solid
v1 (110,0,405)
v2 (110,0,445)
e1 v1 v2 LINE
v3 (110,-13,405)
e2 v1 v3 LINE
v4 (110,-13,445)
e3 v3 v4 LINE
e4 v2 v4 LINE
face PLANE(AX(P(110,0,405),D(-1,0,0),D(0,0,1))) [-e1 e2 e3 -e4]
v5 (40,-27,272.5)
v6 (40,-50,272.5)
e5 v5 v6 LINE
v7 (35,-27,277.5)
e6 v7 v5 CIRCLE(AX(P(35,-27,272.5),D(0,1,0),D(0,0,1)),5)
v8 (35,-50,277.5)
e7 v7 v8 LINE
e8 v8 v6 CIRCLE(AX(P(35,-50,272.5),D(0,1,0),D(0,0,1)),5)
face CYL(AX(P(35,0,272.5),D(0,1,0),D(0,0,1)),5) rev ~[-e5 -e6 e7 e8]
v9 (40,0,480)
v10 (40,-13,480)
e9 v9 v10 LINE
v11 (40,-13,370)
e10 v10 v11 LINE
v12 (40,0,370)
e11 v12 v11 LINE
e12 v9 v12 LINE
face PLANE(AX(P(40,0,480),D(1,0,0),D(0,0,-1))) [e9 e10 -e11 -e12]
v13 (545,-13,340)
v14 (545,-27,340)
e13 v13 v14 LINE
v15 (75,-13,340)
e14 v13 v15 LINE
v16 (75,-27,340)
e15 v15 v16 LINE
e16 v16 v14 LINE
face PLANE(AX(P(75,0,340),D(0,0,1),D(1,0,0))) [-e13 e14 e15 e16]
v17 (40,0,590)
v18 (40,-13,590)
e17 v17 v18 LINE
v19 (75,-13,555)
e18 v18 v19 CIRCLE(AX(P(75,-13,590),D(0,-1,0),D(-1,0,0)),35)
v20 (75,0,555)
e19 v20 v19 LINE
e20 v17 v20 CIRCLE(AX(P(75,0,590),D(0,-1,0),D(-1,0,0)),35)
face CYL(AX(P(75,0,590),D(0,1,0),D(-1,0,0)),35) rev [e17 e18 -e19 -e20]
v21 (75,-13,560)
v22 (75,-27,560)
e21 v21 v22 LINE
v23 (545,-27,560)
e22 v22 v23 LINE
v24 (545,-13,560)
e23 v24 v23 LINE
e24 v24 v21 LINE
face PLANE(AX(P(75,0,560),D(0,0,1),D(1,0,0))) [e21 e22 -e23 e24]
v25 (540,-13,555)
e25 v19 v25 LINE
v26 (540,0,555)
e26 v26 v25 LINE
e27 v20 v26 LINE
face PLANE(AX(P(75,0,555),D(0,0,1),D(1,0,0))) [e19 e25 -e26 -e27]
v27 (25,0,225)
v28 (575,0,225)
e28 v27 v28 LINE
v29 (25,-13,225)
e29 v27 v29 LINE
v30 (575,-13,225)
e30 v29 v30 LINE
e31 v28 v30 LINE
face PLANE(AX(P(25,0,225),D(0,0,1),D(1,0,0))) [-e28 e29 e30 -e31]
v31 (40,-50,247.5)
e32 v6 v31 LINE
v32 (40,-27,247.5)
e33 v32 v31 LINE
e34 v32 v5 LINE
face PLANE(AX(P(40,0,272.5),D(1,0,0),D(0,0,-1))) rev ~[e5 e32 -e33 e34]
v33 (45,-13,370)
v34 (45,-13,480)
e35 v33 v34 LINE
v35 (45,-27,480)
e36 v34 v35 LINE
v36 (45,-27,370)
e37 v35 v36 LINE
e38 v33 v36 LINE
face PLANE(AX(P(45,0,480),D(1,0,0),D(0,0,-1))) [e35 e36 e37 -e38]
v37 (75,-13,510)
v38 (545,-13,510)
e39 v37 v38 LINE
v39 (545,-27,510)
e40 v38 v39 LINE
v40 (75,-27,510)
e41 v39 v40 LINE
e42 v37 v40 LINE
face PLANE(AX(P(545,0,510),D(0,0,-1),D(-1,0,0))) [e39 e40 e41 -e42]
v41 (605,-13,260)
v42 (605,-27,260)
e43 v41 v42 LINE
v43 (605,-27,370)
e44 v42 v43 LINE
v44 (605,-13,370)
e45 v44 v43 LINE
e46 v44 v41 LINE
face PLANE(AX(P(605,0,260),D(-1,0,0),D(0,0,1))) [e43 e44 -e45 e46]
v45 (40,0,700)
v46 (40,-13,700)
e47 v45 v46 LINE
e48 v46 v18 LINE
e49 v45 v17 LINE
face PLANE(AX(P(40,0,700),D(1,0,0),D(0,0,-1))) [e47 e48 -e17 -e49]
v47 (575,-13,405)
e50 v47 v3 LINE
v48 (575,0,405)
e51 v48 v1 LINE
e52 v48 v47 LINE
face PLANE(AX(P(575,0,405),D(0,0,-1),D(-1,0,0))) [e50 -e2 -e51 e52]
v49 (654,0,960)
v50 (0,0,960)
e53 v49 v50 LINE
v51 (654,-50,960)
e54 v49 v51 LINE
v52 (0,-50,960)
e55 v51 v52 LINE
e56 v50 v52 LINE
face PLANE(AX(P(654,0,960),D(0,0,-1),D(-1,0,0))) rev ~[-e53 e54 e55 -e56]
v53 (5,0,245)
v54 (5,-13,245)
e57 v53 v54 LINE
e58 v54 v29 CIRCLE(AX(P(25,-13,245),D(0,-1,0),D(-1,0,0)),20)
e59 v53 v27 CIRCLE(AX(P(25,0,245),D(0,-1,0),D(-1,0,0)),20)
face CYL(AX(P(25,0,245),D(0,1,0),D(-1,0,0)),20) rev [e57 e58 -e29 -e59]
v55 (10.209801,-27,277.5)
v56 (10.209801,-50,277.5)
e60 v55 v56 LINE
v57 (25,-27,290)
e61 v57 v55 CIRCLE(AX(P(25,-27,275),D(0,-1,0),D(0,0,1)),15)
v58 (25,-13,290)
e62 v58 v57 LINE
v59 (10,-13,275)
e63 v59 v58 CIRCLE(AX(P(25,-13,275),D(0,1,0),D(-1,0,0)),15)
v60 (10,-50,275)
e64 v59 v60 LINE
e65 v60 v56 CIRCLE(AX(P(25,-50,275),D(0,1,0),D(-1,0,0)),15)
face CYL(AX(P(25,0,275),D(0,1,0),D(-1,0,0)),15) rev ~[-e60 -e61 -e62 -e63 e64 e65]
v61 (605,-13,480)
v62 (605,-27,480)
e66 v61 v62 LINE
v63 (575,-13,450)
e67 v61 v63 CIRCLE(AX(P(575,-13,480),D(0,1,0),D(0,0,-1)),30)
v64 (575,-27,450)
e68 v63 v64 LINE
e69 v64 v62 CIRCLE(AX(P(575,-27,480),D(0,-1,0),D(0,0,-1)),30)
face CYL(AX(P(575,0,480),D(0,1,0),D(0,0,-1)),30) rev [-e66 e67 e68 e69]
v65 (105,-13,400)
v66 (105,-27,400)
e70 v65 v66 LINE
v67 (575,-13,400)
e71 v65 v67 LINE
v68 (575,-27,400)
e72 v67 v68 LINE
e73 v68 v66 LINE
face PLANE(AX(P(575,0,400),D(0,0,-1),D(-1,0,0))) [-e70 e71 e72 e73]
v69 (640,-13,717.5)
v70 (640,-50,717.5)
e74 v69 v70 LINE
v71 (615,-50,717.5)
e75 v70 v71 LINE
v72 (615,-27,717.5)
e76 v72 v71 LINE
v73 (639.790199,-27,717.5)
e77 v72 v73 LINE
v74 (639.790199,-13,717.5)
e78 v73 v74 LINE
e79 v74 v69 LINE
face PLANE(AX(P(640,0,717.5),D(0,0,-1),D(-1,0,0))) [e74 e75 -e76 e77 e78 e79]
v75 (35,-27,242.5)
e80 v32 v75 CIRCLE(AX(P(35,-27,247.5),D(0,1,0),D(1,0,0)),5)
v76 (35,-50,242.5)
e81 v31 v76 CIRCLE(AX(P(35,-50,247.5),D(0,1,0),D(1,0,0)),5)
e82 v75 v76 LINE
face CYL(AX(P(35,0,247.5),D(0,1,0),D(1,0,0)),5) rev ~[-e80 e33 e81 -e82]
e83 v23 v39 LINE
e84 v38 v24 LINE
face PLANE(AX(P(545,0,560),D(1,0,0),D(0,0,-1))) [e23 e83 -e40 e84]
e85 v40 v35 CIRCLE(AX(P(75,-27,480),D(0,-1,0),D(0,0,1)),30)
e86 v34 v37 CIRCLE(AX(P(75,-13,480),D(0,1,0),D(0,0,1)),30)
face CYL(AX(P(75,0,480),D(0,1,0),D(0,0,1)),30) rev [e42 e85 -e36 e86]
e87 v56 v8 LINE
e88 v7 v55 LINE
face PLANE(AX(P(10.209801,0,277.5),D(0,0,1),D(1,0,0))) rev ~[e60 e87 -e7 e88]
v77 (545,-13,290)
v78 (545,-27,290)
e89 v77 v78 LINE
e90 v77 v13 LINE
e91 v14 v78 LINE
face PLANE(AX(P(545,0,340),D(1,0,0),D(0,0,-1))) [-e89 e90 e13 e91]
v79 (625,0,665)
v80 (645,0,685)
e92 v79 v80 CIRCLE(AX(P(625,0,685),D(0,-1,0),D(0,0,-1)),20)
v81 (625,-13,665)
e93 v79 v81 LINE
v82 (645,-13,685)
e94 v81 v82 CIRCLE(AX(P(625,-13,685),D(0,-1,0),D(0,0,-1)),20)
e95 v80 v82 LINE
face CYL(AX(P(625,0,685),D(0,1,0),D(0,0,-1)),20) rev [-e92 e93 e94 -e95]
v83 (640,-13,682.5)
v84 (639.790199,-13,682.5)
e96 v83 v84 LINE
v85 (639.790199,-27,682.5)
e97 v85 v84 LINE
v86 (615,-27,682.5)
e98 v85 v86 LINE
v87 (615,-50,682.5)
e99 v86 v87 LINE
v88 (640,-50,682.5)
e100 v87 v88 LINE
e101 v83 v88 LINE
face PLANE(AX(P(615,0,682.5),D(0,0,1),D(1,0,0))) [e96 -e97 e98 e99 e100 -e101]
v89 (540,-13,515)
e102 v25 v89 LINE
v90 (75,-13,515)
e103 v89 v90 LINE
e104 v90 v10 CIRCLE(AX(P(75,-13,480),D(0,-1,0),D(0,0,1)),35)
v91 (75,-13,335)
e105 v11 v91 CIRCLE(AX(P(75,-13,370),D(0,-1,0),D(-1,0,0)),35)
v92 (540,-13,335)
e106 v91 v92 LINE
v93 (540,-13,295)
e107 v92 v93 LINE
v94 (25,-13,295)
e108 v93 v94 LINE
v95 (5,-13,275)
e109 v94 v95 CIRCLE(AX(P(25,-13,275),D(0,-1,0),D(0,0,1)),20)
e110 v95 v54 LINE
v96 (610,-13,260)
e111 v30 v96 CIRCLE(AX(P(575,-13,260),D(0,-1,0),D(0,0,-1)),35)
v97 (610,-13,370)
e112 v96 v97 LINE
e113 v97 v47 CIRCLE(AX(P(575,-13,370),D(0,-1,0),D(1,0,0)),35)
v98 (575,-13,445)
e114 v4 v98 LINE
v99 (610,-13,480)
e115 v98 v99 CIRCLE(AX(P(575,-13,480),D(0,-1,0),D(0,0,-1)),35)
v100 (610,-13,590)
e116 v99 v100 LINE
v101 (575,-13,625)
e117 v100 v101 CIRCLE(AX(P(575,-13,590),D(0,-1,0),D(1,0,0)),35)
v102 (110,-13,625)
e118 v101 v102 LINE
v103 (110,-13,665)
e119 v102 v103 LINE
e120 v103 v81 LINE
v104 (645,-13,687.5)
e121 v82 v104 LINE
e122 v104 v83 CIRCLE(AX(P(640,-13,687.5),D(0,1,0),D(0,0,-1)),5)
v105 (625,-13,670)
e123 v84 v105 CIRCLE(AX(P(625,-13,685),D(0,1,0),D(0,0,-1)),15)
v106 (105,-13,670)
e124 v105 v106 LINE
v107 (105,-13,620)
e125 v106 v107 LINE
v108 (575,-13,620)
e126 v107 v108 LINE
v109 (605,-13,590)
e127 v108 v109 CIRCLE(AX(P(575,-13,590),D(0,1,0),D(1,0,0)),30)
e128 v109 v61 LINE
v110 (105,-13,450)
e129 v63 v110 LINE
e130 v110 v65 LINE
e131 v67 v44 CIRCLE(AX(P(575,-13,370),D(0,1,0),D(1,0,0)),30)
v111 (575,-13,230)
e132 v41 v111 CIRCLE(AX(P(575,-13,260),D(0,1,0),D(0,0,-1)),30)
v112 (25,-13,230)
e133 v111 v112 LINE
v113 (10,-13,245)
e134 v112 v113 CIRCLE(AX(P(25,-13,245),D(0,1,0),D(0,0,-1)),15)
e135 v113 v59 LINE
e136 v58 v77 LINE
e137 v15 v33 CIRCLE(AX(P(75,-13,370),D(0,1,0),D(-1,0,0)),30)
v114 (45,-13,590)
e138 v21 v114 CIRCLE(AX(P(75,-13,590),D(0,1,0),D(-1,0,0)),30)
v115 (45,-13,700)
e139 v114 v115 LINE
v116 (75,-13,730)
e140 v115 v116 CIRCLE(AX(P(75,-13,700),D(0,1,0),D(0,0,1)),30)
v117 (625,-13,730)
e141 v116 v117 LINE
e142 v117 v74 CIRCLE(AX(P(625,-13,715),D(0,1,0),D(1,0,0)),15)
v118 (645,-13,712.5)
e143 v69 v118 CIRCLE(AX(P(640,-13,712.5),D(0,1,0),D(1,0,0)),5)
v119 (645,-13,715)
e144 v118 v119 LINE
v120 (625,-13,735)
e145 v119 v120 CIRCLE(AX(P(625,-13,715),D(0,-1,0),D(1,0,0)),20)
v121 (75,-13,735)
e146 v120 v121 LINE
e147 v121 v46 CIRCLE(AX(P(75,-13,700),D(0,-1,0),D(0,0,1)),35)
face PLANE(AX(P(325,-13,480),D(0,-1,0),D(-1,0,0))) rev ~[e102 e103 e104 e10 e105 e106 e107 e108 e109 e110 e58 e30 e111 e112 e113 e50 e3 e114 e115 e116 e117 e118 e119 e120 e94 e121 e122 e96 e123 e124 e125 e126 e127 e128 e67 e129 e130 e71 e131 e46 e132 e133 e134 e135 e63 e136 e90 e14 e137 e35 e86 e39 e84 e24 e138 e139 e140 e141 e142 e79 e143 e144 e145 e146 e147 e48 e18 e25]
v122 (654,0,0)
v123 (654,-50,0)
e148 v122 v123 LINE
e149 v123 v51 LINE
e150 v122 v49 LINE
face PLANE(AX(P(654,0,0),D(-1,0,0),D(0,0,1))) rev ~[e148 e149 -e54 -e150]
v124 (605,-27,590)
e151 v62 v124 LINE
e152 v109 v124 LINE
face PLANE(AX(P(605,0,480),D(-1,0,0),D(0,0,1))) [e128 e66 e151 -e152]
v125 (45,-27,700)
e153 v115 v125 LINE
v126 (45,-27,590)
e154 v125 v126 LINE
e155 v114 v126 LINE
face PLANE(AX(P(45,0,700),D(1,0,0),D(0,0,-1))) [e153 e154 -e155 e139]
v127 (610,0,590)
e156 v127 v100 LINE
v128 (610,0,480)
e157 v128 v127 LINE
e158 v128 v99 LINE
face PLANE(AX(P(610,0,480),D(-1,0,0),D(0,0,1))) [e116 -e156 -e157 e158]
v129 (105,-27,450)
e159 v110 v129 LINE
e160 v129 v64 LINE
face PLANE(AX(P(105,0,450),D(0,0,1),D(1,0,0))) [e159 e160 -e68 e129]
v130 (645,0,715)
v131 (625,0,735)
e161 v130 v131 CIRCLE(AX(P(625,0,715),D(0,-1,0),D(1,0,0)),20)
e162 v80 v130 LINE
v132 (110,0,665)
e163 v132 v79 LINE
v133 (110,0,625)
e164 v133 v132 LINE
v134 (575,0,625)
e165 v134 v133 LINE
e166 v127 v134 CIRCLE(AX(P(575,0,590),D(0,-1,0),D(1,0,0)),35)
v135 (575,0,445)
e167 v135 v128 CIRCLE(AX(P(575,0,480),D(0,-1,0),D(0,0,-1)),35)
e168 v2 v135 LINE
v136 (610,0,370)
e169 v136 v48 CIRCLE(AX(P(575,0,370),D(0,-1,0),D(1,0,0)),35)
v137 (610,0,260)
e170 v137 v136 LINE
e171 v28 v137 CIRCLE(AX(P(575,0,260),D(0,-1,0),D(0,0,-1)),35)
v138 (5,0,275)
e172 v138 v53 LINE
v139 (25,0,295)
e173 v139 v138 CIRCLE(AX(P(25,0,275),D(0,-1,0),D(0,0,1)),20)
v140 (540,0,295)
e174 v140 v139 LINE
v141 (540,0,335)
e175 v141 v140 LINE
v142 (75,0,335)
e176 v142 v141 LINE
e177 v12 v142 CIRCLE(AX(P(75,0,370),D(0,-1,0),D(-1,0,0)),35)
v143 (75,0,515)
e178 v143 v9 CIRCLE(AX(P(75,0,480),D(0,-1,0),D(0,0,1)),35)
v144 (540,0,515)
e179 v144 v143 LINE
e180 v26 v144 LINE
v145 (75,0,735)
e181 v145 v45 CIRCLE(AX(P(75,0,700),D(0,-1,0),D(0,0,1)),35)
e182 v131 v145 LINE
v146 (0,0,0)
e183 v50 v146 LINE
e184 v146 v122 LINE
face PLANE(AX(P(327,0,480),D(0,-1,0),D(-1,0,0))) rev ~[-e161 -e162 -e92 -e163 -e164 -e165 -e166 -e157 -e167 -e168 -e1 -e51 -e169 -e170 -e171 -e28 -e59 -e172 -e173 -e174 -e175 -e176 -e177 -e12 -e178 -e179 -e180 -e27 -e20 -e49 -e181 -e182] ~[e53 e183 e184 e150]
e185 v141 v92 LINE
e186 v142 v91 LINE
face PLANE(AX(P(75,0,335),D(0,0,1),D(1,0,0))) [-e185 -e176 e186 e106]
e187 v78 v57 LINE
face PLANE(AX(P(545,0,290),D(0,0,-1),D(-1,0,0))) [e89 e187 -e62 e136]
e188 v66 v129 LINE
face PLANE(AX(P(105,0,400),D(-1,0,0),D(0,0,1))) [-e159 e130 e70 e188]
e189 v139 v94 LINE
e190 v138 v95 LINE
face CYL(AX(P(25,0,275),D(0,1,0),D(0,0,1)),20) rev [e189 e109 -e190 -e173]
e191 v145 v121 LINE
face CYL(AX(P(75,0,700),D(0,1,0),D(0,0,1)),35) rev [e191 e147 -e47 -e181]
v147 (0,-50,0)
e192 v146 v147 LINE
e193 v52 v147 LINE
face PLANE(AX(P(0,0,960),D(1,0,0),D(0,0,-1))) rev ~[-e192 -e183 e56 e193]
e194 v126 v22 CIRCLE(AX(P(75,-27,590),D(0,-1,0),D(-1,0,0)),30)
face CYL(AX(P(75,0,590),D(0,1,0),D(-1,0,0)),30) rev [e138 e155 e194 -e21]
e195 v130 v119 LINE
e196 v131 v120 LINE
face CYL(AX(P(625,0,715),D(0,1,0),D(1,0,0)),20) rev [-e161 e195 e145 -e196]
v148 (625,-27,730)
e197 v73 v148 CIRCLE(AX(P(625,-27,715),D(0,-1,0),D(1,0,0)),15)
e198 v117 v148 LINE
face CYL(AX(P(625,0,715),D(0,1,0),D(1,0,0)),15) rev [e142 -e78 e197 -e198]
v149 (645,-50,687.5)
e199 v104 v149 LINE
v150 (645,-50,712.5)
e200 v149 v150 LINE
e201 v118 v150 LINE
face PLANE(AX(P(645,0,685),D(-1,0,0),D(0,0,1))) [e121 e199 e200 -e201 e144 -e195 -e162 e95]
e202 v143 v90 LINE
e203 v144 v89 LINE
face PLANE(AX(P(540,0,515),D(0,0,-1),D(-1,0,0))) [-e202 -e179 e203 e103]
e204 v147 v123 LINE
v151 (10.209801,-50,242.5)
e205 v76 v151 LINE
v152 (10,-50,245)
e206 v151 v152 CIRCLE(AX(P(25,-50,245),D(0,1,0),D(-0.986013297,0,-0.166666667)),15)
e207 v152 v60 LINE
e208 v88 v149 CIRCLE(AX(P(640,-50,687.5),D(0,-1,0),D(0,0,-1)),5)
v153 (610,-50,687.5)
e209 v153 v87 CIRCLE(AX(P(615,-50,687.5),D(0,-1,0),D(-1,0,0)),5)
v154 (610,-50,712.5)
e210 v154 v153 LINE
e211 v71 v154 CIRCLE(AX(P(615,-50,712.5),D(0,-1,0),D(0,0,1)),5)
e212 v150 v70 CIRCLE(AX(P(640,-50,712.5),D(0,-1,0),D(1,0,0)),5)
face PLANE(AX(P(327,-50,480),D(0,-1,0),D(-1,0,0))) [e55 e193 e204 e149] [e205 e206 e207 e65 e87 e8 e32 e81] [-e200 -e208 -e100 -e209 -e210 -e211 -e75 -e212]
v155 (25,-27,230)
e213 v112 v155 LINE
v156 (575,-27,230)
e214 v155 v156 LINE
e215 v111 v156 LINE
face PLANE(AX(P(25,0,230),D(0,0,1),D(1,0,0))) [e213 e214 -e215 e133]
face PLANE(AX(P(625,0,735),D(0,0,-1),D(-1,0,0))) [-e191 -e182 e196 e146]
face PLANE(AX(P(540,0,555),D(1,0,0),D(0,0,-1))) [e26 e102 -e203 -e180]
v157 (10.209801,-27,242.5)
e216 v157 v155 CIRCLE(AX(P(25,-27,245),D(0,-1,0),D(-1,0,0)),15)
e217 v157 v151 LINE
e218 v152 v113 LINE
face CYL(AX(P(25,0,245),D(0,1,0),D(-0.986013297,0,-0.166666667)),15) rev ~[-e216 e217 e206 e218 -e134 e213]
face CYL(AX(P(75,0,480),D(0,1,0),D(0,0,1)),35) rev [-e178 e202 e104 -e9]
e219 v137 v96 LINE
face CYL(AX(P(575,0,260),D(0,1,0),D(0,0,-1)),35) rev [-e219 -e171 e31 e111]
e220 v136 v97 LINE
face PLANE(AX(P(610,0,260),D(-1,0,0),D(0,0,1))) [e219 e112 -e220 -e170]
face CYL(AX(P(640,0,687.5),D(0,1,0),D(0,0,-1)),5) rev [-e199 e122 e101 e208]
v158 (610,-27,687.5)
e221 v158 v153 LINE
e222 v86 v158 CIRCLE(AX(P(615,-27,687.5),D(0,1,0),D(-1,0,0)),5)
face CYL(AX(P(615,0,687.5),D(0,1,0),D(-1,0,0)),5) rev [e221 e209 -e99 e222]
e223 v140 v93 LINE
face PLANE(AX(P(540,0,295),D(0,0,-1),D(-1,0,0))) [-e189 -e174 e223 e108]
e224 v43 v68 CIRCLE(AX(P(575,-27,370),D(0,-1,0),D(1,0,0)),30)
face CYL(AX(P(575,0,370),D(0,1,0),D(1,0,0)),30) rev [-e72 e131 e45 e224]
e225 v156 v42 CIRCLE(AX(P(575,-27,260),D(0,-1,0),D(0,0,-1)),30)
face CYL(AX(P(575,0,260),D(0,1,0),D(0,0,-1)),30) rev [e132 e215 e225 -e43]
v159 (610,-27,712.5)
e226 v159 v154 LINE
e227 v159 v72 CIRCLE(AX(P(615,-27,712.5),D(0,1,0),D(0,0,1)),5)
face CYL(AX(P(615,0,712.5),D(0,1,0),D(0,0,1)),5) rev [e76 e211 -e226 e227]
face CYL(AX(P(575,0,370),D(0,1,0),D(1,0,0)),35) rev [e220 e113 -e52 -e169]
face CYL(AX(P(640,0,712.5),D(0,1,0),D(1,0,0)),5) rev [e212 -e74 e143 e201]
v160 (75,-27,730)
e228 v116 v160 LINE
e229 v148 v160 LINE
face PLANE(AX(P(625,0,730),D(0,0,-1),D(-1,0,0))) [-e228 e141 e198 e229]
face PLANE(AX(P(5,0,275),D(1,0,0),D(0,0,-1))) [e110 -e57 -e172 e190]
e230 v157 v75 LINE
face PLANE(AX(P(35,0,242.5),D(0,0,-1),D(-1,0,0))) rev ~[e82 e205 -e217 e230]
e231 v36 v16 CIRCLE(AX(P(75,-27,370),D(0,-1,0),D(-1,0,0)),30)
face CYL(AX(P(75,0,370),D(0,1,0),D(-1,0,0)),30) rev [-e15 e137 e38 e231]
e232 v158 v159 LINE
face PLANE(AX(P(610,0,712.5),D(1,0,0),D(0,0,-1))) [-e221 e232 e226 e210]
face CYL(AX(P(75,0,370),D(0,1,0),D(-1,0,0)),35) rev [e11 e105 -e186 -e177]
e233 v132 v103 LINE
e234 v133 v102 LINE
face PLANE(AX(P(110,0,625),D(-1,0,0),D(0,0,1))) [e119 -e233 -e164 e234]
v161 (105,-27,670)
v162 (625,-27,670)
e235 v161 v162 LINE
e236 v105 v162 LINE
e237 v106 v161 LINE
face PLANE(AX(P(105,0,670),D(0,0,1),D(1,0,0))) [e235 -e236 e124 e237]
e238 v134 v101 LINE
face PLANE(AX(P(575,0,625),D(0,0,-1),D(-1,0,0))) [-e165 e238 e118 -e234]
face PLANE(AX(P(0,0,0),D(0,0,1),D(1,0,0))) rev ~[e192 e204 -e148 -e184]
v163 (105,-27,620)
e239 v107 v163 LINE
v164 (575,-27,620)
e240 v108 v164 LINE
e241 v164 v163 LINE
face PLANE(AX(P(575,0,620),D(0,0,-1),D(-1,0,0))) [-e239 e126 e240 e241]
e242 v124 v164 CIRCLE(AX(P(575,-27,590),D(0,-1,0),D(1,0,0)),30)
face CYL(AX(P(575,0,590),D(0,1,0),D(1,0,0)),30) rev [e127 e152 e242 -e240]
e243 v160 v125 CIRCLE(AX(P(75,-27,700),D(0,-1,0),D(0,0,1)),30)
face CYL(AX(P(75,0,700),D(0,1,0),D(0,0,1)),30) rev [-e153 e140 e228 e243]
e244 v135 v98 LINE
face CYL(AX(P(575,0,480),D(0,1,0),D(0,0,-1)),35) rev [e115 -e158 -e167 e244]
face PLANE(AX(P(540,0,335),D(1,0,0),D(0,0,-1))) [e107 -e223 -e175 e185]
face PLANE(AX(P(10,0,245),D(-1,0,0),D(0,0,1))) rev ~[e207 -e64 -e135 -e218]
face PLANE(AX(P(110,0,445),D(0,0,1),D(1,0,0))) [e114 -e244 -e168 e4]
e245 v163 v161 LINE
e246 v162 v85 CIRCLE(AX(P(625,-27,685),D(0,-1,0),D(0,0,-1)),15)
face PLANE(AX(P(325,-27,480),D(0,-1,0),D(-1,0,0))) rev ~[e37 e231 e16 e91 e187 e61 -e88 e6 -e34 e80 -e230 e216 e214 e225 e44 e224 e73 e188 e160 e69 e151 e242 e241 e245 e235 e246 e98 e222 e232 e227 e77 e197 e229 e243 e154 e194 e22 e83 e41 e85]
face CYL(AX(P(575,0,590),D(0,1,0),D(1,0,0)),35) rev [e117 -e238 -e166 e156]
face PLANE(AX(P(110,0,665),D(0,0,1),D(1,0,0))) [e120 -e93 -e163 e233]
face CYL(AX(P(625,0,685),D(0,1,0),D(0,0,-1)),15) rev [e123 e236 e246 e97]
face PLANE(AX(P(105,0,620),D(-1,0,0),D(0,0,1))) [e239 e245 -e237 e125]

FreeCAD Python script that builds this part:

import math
import FreeCAD as App
import Part
import Sketcher
from FreeCAD import Vector

doc = App.newDocument("Part")
body = doc.addObject("PartDesign::Body", "Body")

# Sketch on XZ plane
sketch1 = body.newObject("Sketcher::SketchObject", "Sketch")
sketch1.AttachmentSupport = (doc.getObject("XZ_Plane"), [""])
sketch1.MapMode = "FlatFace"
sketch1.addGeometry([
    Part.LineSegment(Vector(654, 0, 0), Vector(0, 0, 0)),
    Part.LineSegment(Vector(0, 0, 0), Vector(0, 960, 0)),
    Part.LineSegment(Vector(0, 960, 0), Vector(654, 960, 0)),
    Part.LineSegment(Vector(654, 960, 0), Vector(654, 0, 0)),
], False)
sketch1.addConstraint([
    Sketcher.Constraint("Coincident", 0, 2, 1, 1),
    Sketcher.Constraint("Coincident", 1, 2, 2, 1),
    Sketcher.Constraint("Coincident", 2, 2, 3, 1),
    Sketcher.Constraint("Coincident", 3, 2, 0, 1),
    Sketcher.Constraint("Horizontal", 0),
    Sketcher.Constraint("Vertical", 1),
    Sketcher.Constraint("Horizontal", 2),
    Sketcher.Constraint("Vertical", 3),
    Sketcher.Constraint("Coincident", 0, 2, -1, 1),
    Sketcher.Constraint("DistanceX", 0, 2, 0, 1, 654.0),
    Sketcher.Constraint("DistanceY", 1, 1, 1, 2, 960.0),
])
pad1 = body.newObject("PartDesign::Pad", "Pad")
pad1.Profile = sketch1
pad1.Length = 50

# Sketch on XZ plane
sketch2 = body.newObject("Sketcher::SketchObject", "Sketch001")
sketch2.AttachmentSupport = (doc.getObject("XZ_Plane"), [""])
sketch2.MapMode = "FlatFace"
sketch2.addGeometry([
    Part.LineSegment(Vector(5, 245, 0), Vector(5, 275, 0)),  # 0
    Part.ArcOfCircle(Part.Circle(Vector(25, 275, 0), Vector(0, 0, 1), 20), math.radians(90), math.radians(180)),  # 1
    Part.LineSegment(Vector(25, 295, 0), Vector(540, 295, 0)),  # 2
    Part.LineSegment(Vector(540, 295, 0), Vector(540, 335, 0)),  # 3
    Part.LineSegment(Vector(540, 335, 0), Vector(75, 335, 0)),  # 4
    Part.ArcOfCircle(Part.Circle(Vector(75, 370, 0), Vector(0, 0, 1), 35), math.radians(180), math.radians(270)),  # 5
    Part.LineSegment(Vector(40, 370, 0), Vector(40, 480, 0)),  # 6
    Part.ArcOfCircle(Part.Circle(Vector(75, 480, 0), Vector(0, 0, 1), 35), math.radians(90), math.radians(180)),  # 7
    Part.LineSegment(Vector(75, 515, 0), Vector(540, 515, 0)),  # 8
    Part.LineSegment(Vector(540, 515, 0), Vector(540, 555, 0)),  # 9
    Part.LineSegment(Vector(540, 555, 0), Vector(75, 555, 0)),  # 10
    Part.ArcOfCircle(Part.Circle(Vector(75, 590, 0), Vector(0, 0, 1), 35), math.radians(180), math.radians(270)),  # 11
    Part.LineSegment(Vector(40, 590, 0), Vector(40, 700, 0)),  # 12
    Part.ArcOfCircle(Part.Circle(Vector(75, 700, 0), Vector(0, 0, 1), 35), math.radians(90), math.radians(180)),  # 13
    Part.LineSegment(Vector(75, 735, 0), Vector(625, 735, 0)),  # 14
    Part.ArcOfCircle(Part.Circle(Vector(625, 715, 0), Vector(0, 0, 1), 20), math.radians(0), math.radians(90)),  # 15
    Part.LineSegment(Vector(645, 715, 0), Vector(645, 685, 0)),  # 16
    Part.ArcOfCircle(Part.Circle(Vector(625, 685, 0), Vector(0, 0, 1), 20), math.radians(-90), math.radians(0)),  # 17
    Part.LineSegment(Vector(625, 665, 0), Vector(110, 665, 0)),  # 18
    Part.LineSegment(Vector(110, 665, 0), Vector(110, 625, 0)),  # 19
    Part.LineSegment(Vector(110, 625, 0), Vector(575, 625, 0)),  # 20
    Part.ArcOfCircle(Part.Circle(Vector(575, 590, 0), Vector(0, 0, 1), 35), math.radians(0), math.radians(90)),  # 21
    Part.LineSegment(Vector(610, 590, 0), Vector(610, 480, 0)),  # 22
    Part.ArcOfCircle(Part.Circle(Vector(575, 480, 0), Vector(0, 0, 1), 35), math.radians(-90), math.radians(0)),  # 23
    Part.LineSegment(Vector(575, 445, 0), Vector(110, 445, 0)),  # 24
    Part.LineSegment(Vector(110, 445, 0), Vector(110, 405, 0)),  # 25
    Part.LineSegment(Vector(110, 405, 0), Vector(575, 405, 0)),  # 26
    Part.ArcOfCircle(Part.Circle(Vector(575, 370, 0), Vector(0, 0, 1), 35), math.radians(0), math.radians(90)),  # 27
    Part.LineSegment(Vector(610, 370, 0), Vector(610, 260, 0)),  # 28
    Part.ArcOfCircle(Part.Circle(Vector(575, 260, 0), Vector(0, 0, 1), 35), math.radians(-90), math.radians(0)),  # 29
    Part.LineSegment(Vector(575, 225, 0), Vector(25, 225, 0)),  # 30
    Part.ArcOfCircle(Part.Circle(Vector(25, 245, 0), Vector(0, 0, 1), 20), math.radians(180), math.radians(270)),  # 31
], False)
sketch2.addConstraint([
    Sketcher.Constraint("Tangent", 0, 2, 1, 2),
    Sketcher.Constraint("Tangent", 1, 1, 2, 1),
    Sketcher.Constraint("Coincident", 2, 2, 3, 1),
    Sketcher.Constraint("Coincident", 3, 2, 4, 1),
    Sketcher.Constraint("Tangent", 4, 2, 5, 2),
    Sketcher.Constraint("Tangent", 5, 1, 6, 1),
    Sketcher.Constraint("Tangent", 6, 2, 7, 2),
    Sketcher.Constraint("Tangent", 7, 1, 8, 1),
    Sketcher.Constraint("Coincident", 8, 2, 9, 1),
    Sketcher.Constraint("Coincident", 9, 2, 10, 1),
    Sketcher.Constraint("Tangent", 10, 2, 11, 2),
    Sketcher.Constraint("Tangent", 11, 1, 12, 1),
    Sketcher.Constraint("Tangent", 12, 2, 13, 2),
    Sketcher.Constraint("Tangent", 13, 1, 14, 1),
    Sketcher.Constraint("Tangent", 14, 2, 15, 2),
    Sketcher.Constraint("Tangent", 15, 1, 16, 1),
    Sketcher.Constraint("Tangent", 16, 2, 17, 2),
    Sketcher.Constraint("Tangent", 17, 1, 18, 1),
    Sketcher.Constraint("Coincident", 18, 2, 19, 1),
    Sketcher.Constraint("Coincident", 19, 2, 20, 1),
    Sketcher.Constraint("Tangent", 20, 2, 21, 2),
    Sketcher.Constraint("Tangent", 21, 1, 22, 1),
    Sketcher.Constraint("Tangent", 22, 2, 23, 2),
    Sketcher.Constraint("Tangent", 23, 1, 24, 1),
    Sketcher.Constraint("Coincident", 24, 2, 25, 1),
    Sketcher.Constraint("Coincident", 25, 2, 26, 1),
    Sketcher.Constraint("Tangent", 26, 2, 27, 2),
    Sketcher.Constraint("Tangent", 27, 1, 28, 1),
    Sketcher.Constraint("Tangent", 28, 2, 29, 2),
    Sketcher.Constraint("Tangent", 29, 1, 30, 1),
    Sketcher.Constraint("Tangent", 30, 2, 31, 2),
    Sketcher.Constraint("Tangent", 31, 1, 0, 1),
    Sketcher.Constraint("Vertical", 0),
    Sketcher.Constraint("Horizontal", 2),
    Sketcher.Constraint("Vertical", 3),
    Sketcher.Constraint("Horizontal", 4),
    Sketcher.Constraint("Vertical", 6),
    Sketcher.Constraint("Horizontal", 8),
    Sketcher.Constraint("Vertical", 9),
    Sketcher.Constraint("Horizontal", 10),
    Sketcher.Constraint("Vertical", 12),
    Sketcher.Constraint("Horizontal", 14),
    Sketcher.Constraint("Vertical", 16),
    Sketcher.Constraint("Horizontal", 18),
    Sketcher.Constraint("Vertical", 19),
    Sketcher.Constraint("Horizontal", 20),
    Sketcher.Constraint("Vertical", 22),
    Sketcher.Constraint("Horizontal", 24),
    Sketcher.Constraint("Vertical", 25),
    Sketcher.Constraint("Horizontal", 26),
    Sketcher.Constraint("Vertical", 28),
    Sketcher.Constraint("Horizontal", 30),
    Sketcher.Constraint("Equal", 5, 7),
    Sketcher.Constraint("Equal", 7, 11),
    Sketcher.Constraint("Equal", 11, 13),
    Sketcher.Constraint("Equal", 1, 15),
    Sketcher.Constraint("Equal", 15, 17),
    Sketcher.Constraint("Equal", 13, 21),
    Sketcher.Constraint("Equal", 21, 23),
    Sketcher.Constraint("Equal", 23, 27),
    Sketcher.Constraint("Equal", 27, 29),
    Sketcher.Constraint("Equal", 17, 31),
    Sketcher.Constraint("Horizontal", 11, 3, 21, 3),
    Sketcher.Constraint("Horizontal", 7, 3, 23, 3),
    Sketcher.Constraint("Horizontal", 5, 3, 27, 3),
    Sketcher.Constraint("Vertical", 7, 3, 11, 3),
    Sketcher.Constraint("Vertical", 23, 3, 27, 3),
    Sketcher.Constraint("Vertical", 3, 2, 8, 2),
    Sketcher.Constraint("Vertical", 19, 2, 24, 2),
    Sketcher.Constraint("Equal", 2, 18),
    Sketcher.Constraint("Equal", 10, 20),
    Sketcher.Constraint("Equal", 3, 9),
    Sketcher.Constraint("Equal", 6, 12),
    Sketcher.Constraint("Equal", 0, 16),
    Sketcher.Constraint("Equal", 9, 19),
    Sketcher.Constraint("Equal", 12, 22),
    Sketcher.Constraint("Radius", 1, 20.0),
    Sketcher.Constraint("Radius", 5, 35.0),
    Sketcher.Constraint("DistanceX", 2, 1, 2, 2, 515.0),
    Sketcher.Constraint("DistanceX", 4, 2, 4, 1, 465.0),
    Sketcher.Constraint("DistanceX", 14, 1, 14, 2, 550.0),
    Sketcher.Constraint("DistanceY", 3, 1, 3, 2, 40.0),
    Sketcher.Constraint("DistanceX", -1, 1, 1, 3, 25.0),
    Sketcher.Constraint("DistanceY", -1, 1, 1, 3, 275.0),
])
pocket1 = body.newObject("PartDesign::Pocket", "Pocket")
pocket1.Profile = sketch2
pocket1.Length = 13
pocket1.Reversed = True

# Sketch on XZ plane
sketch3 = body.newObject("Sketcher::SketchObject", "Sketch002")
sketch3.AttachmentSupport = (doc.getObject("XZ_Plane"), [""])
sketch3.MapMode = "FlatFace"
sketch3.addGeometry([
    Part.LineSegment(Vector(575, 230, 0), Vector(25, 230, 0)),  # 0
    Part.ArcOfCircle(Part.Circle(Vector(25, 245, 0), Vector(0, 0, 1), 15), math.radians(180), math.radians(270)),  # 1
    Part.LineSegment(Vector(10, 245, 0), Vector(10, 275, 0)),  # 2
    Part.ArcOfCircle(Part.Circle(Vector(25, 275, 0), Vector(0, 0, 1), 15), math.radians(90), math.radians(180)),  # 3
    Part.LineSegment(Vector(25, 290, 0), Vector(545, 290, 0)),  # 4
    Part.LineSegment(Vector(545, 290, 0), Vector(545, 340, 0)),  # 5
    Part.LineSegment(Vector(545, 340, 0), Vector(75, 340, 0)),  # 6
    Part.ArcOfCircle(Part.Circle(Vector(75, 370, 0), Vector(0, 0, 1), 30), math.radians(180), math.radians(270)),  # 7
    Part.LineSegment(Vector(45, 370, 0), Vector(45, 480, 0)),  # 8
    Part.ArcOfCircle(Part.Circle(Vector(75, 480, 0), Vector(0, 0, 1), 30), math.radians(90), math.radians(180)),  # 9
    Part.LineSegment(Vector(75, 510, 0), Vector(545, 510, 0)),  # 10
    Part.LineSegment(Vector(545, 510, 0), Vector(545, 560, 0)),  # 11
    Part.LineSegment(Vector(545, 560, 0), Vector(75, 560, 0)),  # 12
    Part.ArcOfCircle(Part.Circle(Vector(75, 590, 0), Vector(0, 0, 1), 30), math.radians(180), math.radians(270)),  # 13
    Part.LineSegment(Vector(45, 590, 0), Vector(45, 700, 0)),  # 14
    Part.ArcOfCircle(Part.Circle(Vector(75, 700, 0), Vector(0, 0, 1), 30), math.radians(90), math.radians(180)),  # 15
    Part.LineSegment(Vector(75, 730, 0), Vector(625, 730, 0)),  # 16
    Part.ArcOfCircle(Part.Circle(Vector(625, 715, 0), Vector(0, 0, 1), 15), math.radians(0), math.radians(90)),  # 17
    Part.LineSegment(Vector(640, 715, 0), Vector(640, 685, 0)),  # 18
    Part.ArcOfCircle(Part.Circle(Vector(625, 685, 0), Vector(0, 0, 1), 15), math.radians(-90), math.radians(0)),  # 19
    Part.LineSegment(Vector(625, 670, 0), Vector(105, 670, 0)),  # 20
    Part.LineSegment(Vector(105, 670, 0), Vector(105, 620, 0)),  # 21
    Part.LineSegment(Vector(105, 620, 0), Vector(575, 620, 0)),  # 22
    Part.ArcOfCircle(Part.Circle(Vector(575, 590, 0), Vector(0, 0, 1), 30), math.radians(0), math.radians(90)),  # 23
    Part.LineSegment(Vector(605, 590, 0), Vector(605, 480, 0)),  # 24
    Part.ArcOfCircle(Part.Circle(Vector(575, 480, 0), Vector(0, 0, 1), 30), math.radians(-90), math.radians(0)),  # 25
    Part.LineSegment(Vector(575, 450, 0), Vector(105, 450, 0)),  # 26
    Part.LineSegment(Vector(105, 450, 0), Vector(105, 400, 0)),  # 27
    Part.LineSegment(Vector(105, 400, 0), Vector(575, 400, 0)),  # 28
    Part.ArcOfCircle(Part.Circle(Vector(575, 370, 0), Vector(0, 0, 1), 30), math.radians(0), math.radians(90)),  # 29
    Part.LineSegment(Vector(605, 370, 0), Vector(605, 260, 0)),  # 30
    Part.ArcOfCircle(Part.Circle(Vector(575, 260, 0), Vector(0, 0, 1), 30), math.radians(-90), math.radians(0)),  # 31
], False)
sketch3.addConstraint([
    Sketcher.Constraint("Tangent", 0, 2, 1, 2),
    Sketcher.Constraint("Tangent", 1, 1, 2, 1),
    Sketcher.Constraint("Tangent", 2, 2, 3, 2),
    Sketcher.Constraint("Tangent", 3, 1, 4, 1),
    Sketcher.Constraint("Coincident", 4, 2, 5, 1),
    Sketcher.Constraint("Coincident", 5, 2, 6, 1),
    Sketcher.Constraint("Tangent", 6, 2, 7, 2),
    Sketcher.Constraint("Tangent", 7, 1, 8, 1),
    Sketcher.Constraint("Tangent", 8, 2, 9, 2),
    Sketcher.Constraint("Tangent", 9, 1, 10, 1),
    Sketcher.Constraint("Coincident", 10, 2, 11, 1),
    Sketcher.Constraint("Coincident", 11, 2, 12, 1),
    Sketcher.Constraint("Tangent", 12, 2, 13, 2),
    Sketcher.Constraint("Tangent", 13, 1, 14, 1),
    Sketcher.Constraint("Tangent", 14, 2, 15, 2),
    Sketcher.Constraint("Tangent", 15, 1, 16, 1),
    Sketcher.Constraint("Tangent", 16, 2, 17, 2),
    Sketcher.Constraint("Tangent", 17, 1, 18, 1),
    Sketcher.Constraint("Tangent", 18, 2, 19, 2),
    Sketcher.Constraint("Tangent", 19, 1, 20, 1),
    Sketcher.Constraint("Coincident", 20, 2, 21, 1),
    Sketcher.Constraint("Coincident", 21, 2, 22, 1),
    Sketcher.Constraint("Tangent", 22, 2, 23, 2),
    Sketcher.Constraint("Tangent", 23, 1, 24, 1),
    Sketcher.Constraint("Tangent", 24, 2, 25, 2),
    Sketcher.Constraint("Tangent", 25, 1, 26, 1),
    Sketcher.Constraint("Coincident", 26, 2, 27, 1),
    Sketcher.Constraint("Coincident", 27, 2, 28, 1),
    Sketcher.Constraint("Tangent", 28, 2, 29, 2),
    Sketcher.Constraint("Tangent", 29, 1, 30, 1),
    Sketcher.Constraint("Tangent", 30, 2, 31, 2),
    Sketcher.Constraint("Tangent", 31, 1, 0, 1),
    Sketcher.Constraint("Horizontal", 0),
    Sketcher.Constraint("Vertical", 2),
    Sketcher.Constraint("Horizontal", 4),
    Sketcher.Constraint("Vertical", 5),
    Sketcher.Constraint("Horizontal", 6),
    Sketcher.Constraint("Vertical", 8),
    Sketcher.Constraint("Horizontal", 10),
    Sketcher.Constraint("Vertical", 11),
    Sketcher.Constraint("Horizontal", 12),
    Sketcher.Constraint("Vertical", 14),
    Sketcher.Constraint("Horizontal", 16),
    Sketcher.Constraint("Vertical", 18),
    Sketcher.Constraint("Horizontal", 20),
    Sketcher.Constraint("Vertical", 21),
    Sketcher.Constraint("Horizontal", 22),
    Sketcher.Constraint("Vertical", 24),
    Sketcher.Constraint("Horizontal", 26),
    Sketcher.Constraint("Vertical", 27),
    Sketcher.Constraint("Horizontal", 28),
    Sketcher.Constraint("Vertical", 30),
    Sketcher.Constraint("Equal", 1, 3),
    Sketcher.Constraint("Equal", 7, 9),
    Sketcher.Constraint("Equal", 9, 13),
    Sketcher.Constraint("Equal", 13, 15),
    Sketcher.Constraint("Equal", 3, 17),
    Sketcher.Constraint("Equal", 17, 19),
    Sketcher.Constraint("Equal", 15, 23),
    Sketcher.Constraint("Equal", 23, 25),
    Sketcher.Constraint("Equal", 25, 29),
    Sketcher.Constraint("Equal", 29, 31),
    Sketcher.Constraint("Horizontal", 13, 3, 23, 3),
    Sketcher.Constraint("Horizontal", 9, 3, 25, 3),
    Sketcher.Constraint("Horizontal", 7, 3, 29, 3),
    Sketcher.Constraint("Vertical", 9, 3, 13, 3),
    Sketcher.Constraint("Vertical", 25, 3, 29, 3),
    Sketcher.Constraint("Vertical", 5, 2, 10, 2),
    Sketcher.Constraint("Vertical", 21, 2, 26, 2),
    Sketcher.Constraint("Equal", 0, 16),
    Sketcher.Constraint("Equal", 4, 20),
    Sketcher.Constraint("Equal", 5, 11),
    Sketcher.Constraint("Equal", 8, 14),
    Sketcher.Constraint("Equal", 2, 18),
    Sketcher.Constraint("Equal", 11, 21),
    Sketcher.Constraint("Equal", 14, 24),
    Sketcher.Constraint("Radius", 1, 15.0),
    Sketcher.Constraint("Radius", 7, 30.0),
    Sketcher.Constraint("DistanceX", 0, 2, 0, 1, 550.0),
    Sketcher.Constraint("DistanceX", 4, 1, 4, 2, 520.0),
    Sketcher.Constraint("DistanceX", 6, 2, 6, 1, 470.0),
    Sketcher.Constraint("DistanceY", 5, 1, 5, 2, 50.0),
    Sketcher.Constraint("DistanceX", -1, 1, 1, 3, 25.0),
    Sketcher.Constraint("DistanceY", -1, 1, 1, 3, 245.0),
])
pocket2 = body.newObject("PartDesign::Pocket", "Pocket001")
pocket2.Profile = sketch3
pocket2.Length = 27
pocket2.Reversed = True

# Sketch on XZ plane
sketch4 = body.newObject("Sketcher::SketchObject", "Sketch003")
sketch4.AttachmentSupport = (doc.getObject("XZ_Plane"), [""])
sketch4.MapMode = "FlatFace"
sketch4.addGeometry([
    Part.ArcOfCircle(Part.Circle(Vector(25, 275, 0), Vector(0, 0, 1), 15), math.radians(170.41), math.radians(180)),  # 0
    Part.LineSegment(Vector(10.2, 277.5, 0), Vector(35, 277.5, 0)),  # 1
    Part.ArcOfCircle(Part.Circle(Vector(35, 272.5, 0), Vector(0, 0, 1), 5), math.radians(0), math.radians(90)),  # 2
    Part.LineSegment(Vector(40, 272.5, 0), Vector(40, 247.5, 0)),  # 3
    Part.ArcOfCircle(Part.Circle(Vector(35, 247.5, 0), Vector(0, 0, 1), 5), math.radians(-90), math.radians(0)),  # 4
    Part.LineSegment(Vector(35, 242.5, 0), Vector(10.2, 242.5, 0)),  # 5
    Part.ArcOfCircle(Part.Circle(Vector(25, 245, 0), Vector(0, 0, 1), 15), math.radians(180), math.radians(189.59)),  # 6
    Part.LineSegment(Vector(10, 245, 0), Vector(10, 275, 0)),  # 7
    Part.LineSegment(Vector(610, 687.5, 0), Vector(610, 712.5, 0)),  # 8
    Part.ArcOfCircle(Part.Circle(Vector(615, 712.5, 0), Vector(0, 0, 1), 5), math.radians(90), math.radians(180)),  # 9
    Part.LineSegment(Vector(615, 717.5, 0), Vector(640, 717.5, 0)),  # 10
    Part.ArcOfCircle(Part.Circle(Vector(640, 712.5, 0), Vector(0, 0, 1), 5), math.radians(0), math.radians(90)),  # 11
    Part.LineSegment(Vector(645, 712.5, 0), Vector(645, 687.5, 0)),  # 12
    Part.ArcOfCircle(Part.Circle(Vector(640, 687.5, 0), Vector(0, 0, 1), 5), math.radians(-90), math.radians(0)),  # 13
    Part.LineSegment(Vector(640, 682.5, 0), Vector(615, 682.5, 0)),  # 14
    Part.ArcOfCircle(Part.Circle(Vector(615, 687.5, 0), Vector(0, 0, 1), 5), math.radians(180), math.radians(270)),  # 15
], False)
sketch4.addConstraint([
    Sketcher.Constraint("Coincident", 0, 1, 1, 1),
    Sketcher.Constraint("Tangent", 1, 2, 2, 2),
    Sketcher.Constraint("Tangent", 2, 1, 3, 1),
    Sketcher.Constraint("Tangent", 3, 2, 4, 2),
    Sketcher.Constraint("Tangent", 4, 1, 5, 1),
    Sketcher.Constraint("Coincident", 5, 2, 6, 2),
    Sketcher.Constraint("Tangent", 6, 1, 7, 1),
    Sketcher.Constraint("Tangent", 7, 2, 0, 2),
    Sketcher.Constraint("Tangent", 8, 2, 9, 2),
    Sketcher.Constraint("Tangent", 9, 1, 10, 1),
    Sketcher.Constraint("Tangent", 10, 2, 11, 2),
    Sketcher.Constraint("Tangent", 11, 1, 12, 1),
    Sketcher.Constraint("Tangent", 12, 2, 13, 2),
    Sketcher.Constraint("Tangent", 13, 1, 14, 1),
    Sketcher.Constraint("Tangent", 14, 2, 15, 2),
    Sketcher.Constraint("Tangent", 15, 1, 8, 1),
    Sketcher.Constraint("Horizontal", 1),
    Sketcher.Constraint("Vertical", 3),
    Sketcher.Constraint("Horizontal", 5),
    Sketcher.Constraint("Vertical", 7),
    Sketcher.Constraint("Vertical", 8),
    Sketcher.Constraint("Horizontal", 10),
    Sketcher.Constraint("Vertical", 12),
    Sketcher.Constraint("Horizontal", 14),
    Sketcher.Constraint("Equal", 2, 4),
    Sketcher.Constraint("Equal", 0, 6),
    Sketcher.Constraint("Equal", 4, 9),
    Sketcher.Constraint("Equal", 9, 11),
    Sketcher.Constraint("Equal", 11, 13),
    Sketcher.Constraint("Equal", 13, 15),
    Sketcher.Constraint("Vertical", 0, 1, 5, 2),
    Sketcher.Constraint("Equal", 14, 3),
    Sketcher.Constraint("Equal", 3, 8),
    Sketcher.Constraint("Radius", 0, 15.0),
    Sketcher.Constraint("Radius", 2, 5.0),
    Sketcher.Constraint("DistanceX", 10, 1, 10, 2, 25.0),
    Sketcher.Constraint("DistanceY", 7, 1, 7, 2, 30.0),
    Sketcher.Constraint("DistanceX", -1, 1, 0, 3, 25.0),
    Sketcher.Constraint("DistanceY", -1, 1, 0, 3, 275.0),
    Sketcher.Constraint("DistanceX", -1, 1, 2, 3, 35.0),
    Sketcher.Constraint("DistanceX", -1, 1, 9, 3, 615.0),
    Sketcher.Constraint("DistanceY", 2, 3, 9, 3, 440.0),
])
pocket3 = body.newObject("PartDesign::Pocket", "Pocket002")
pocket3.Profile = sketch4
pocket3.Length = 50
pocket3.Reversed = True

doc.recompute()
